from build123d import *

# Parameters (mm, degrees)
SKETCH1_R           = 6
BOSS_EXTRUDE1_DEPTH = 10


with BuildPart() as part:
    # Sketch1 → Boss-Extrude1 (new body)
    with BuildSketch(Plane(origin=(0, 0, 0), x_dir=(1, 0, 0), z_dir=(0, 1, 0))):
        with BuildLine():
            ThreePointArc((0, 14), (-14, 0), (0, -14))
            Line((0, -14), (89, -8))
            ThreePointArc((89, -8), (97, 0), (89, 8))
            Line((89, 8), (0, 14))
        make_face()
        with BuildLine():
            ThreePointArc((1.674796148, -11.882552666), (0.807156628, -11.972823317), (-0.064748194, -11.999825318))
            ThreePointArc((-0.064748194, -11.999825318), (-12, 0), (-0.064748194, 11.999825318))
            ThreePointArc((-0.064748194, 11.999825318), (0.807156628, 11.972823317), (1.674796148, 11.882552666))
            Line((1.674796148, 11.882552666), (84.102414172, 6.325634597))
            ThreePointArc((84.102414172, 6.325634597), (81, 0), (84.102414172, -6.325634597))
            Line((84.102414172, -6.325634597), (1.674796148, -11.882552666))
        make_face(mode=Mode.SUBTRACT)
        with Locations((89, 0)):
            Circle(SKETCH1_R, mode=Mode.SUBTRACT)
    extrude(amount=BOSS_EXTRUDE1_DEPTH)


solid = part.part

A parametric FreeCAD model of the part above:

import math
import FreeCAD as App
import Part
import Sketcher

doc = App.newDocument("Part")
body = doc.addObject("PartDesign::Body", "Body")

# Sketch on XZ plane
sketch1 = body.newObject("Sketcher::SketchObject", "Sketch")
sketch1.AttachmentSupport = (doc.getObject("XZ_Plane"), [""])
sketch1.MapMode = "FlatFace"
sketch1.addGeometry(Part.ArcOfCircle(Part.Circle(App.Vector(0, 0, 0), App.Vector(0, 0, 1), 14), math.radians(90), math.radians(270)), False)
sketch1.addGeometry(Part.LineSegment(App.Vector(0, 14, 0), App.Vector(89, 8, 0)), False)
sketch1.addGeometry(Part.ArcOfCircle(Part.Circle(App.Vector(89, 0, 0), App.Vector(0, 0, 1), 8), math.radians(-90), math.radians(90)), False)
sketch1.addGeometry(Part.LineSegment(App.Vector(89, -8, 0), App.Vector(0, -14, 0)), False)
sketch1.addGeometry(Part.LineSegment(App.Vector(84.1, 6.3, 0), App.Vector(1.7, 11.9, 0)), False)
sketch1.addGeometry(Part.ArcOfCircle(Part.Circle(App.Vector(0, 0, 0), App.Vector(0, 0, 1), 12), math.radians(81.98), math.radians(90.31)), False)
sketch1.addGeometry(Part.ArcOfCircle(Part.Circle(App.Vector(0, 0, 0), App.Vector(0, 0, 1), 12), math.radians(90), math.radians(270)), False)
sketch1.addGeometry(Part.ArcOfCircle(Part.Circle(App.Vector(0, 0, 0), App.Vector(0, 0, 1), 12), math.radians(-90.31), math.radians(-81.98)), False)
sketch1.addGeometry(Part.LineSegment(App.Vector(1.7, -11.9, 0), App.Vector(84.1, -6.3, 0)), False)
sketch1.addGeometry(Part.ArcOfCircle(Part.Circle(App.Vector(89, 0, 0), App.Vector(0, 0, 1), 8), math.radians(128), math.radians(232)), False)
sketch1.addGeometry(Part.Circle(App.Vector(89, 0, 0), App.Vector(0, 0, 1), 6), False)
sketch1.addConstraint(Sketcher.Constraint("Coincident", 0, 1, 1, 1))
sketch1.addConstraint(Sketcher.Constraint("Coincident", 1, 2, 2, 2))
sketch1.addConstraint(Sketcher.Constraint("Coincident", 2, 1, 3, 1))
sketch1.addConstraint(Sketcher.Constraint("Coincident", 3, 2, 0, 2))
sketch1.addConstraint(Sketcher.Constraint("Coincident", 4, 2, 5, 1))
sketch1.addConstraint(Sketcher.Constraint("Tangent", 5, 2, 6, 1))
sketch1.addConstraint(Sketcher.Constraint("Tangent", 6, 2, 7, 1))
sketch1.addConstraint(Sketcher.Constraint("Coincident", 7, 2, 8, 1))
sketch1.addConstraint(Sketcher.Constraint("Coincident", 8, 2, 9, 2))
sketch1.addConstraint(Sketcher.Constraint("Coincident", 9, 1, 4, 1))
sketch1.addConstraint(Sketcher.Constraint("Coincident", 0, 3, -1, 1))
sketch1.addConstraint(Sketcher.Constraint("Coincident", 5, 3, -1, 1))
sketch1.addConstraint(Sketcher.Constraint("Coincident", 7, 3, -1, 1))
sketch1.addConstraint(Sketcher.Constraint("Coincident", 9, 3, 2, 3))
sketch1.addConstraint(Sketcher.Constraint("Coincident", 10, 3, 2, 3))
sketch1.addConstraint(Sketcher.Constraint("Equal", 2, 9))
sketch1.addConstraint(Sketcher.Constraint("Symmetric", 1, 2, 2, 1, -1))
sketch1.addConstraint(Sketcher.Constraint("PointOnObject", 0, 1, -2))
sketch1.addConstraint(Sketcher.Constraint("PointOnObject", 3, 2, -2))
sketch1.addConstraint(Sketcher.Constraint("Parallel", 1, 4))
sketch1.addConstraint(Sketcher.Constraint("Parallel", 3, 8))
sketch1.addConstraint(Sketcher.Constraint("Vertical", 10, 3, 1, 2))
sketch1.addConstraint(Sketcher.Constraint("Vertical", 5, 2, 6, 2))
sketch1.addConstraint(Sketcher.Constraint("Vertical", 4, 2, 7, 2))
sketch1.addConstraint(Sketcher.Constraint("Diameter", 10, 12.0))
sketch1.addConstraint(Sketcher.Constraint("Radius", 0, 14.0))
sketch1.addConstraint(Sketcher.Constraint("Radius", 2, 8.0))
sketch1.addConstraint(Sketcher.Constraint("Radius", 5, 12.0))
sketch1.addConstraint(Sketcher.Constraint("DistanceX", -1, 1, 2, 3, 89.0))
sketch1.addConstraint(Sketcher.Constraint("DistanceX", 5, 2, -1, 1, 0.064748))
sketch1.addConstraint(Sketcher.Constraint("DistanceY", 8, 2, 9, 1, 12.651269))
pad1 = body.newObject("PartDesign::Pad", "Pad")
pad1.Profile = sketch1
pad1.Length = 10
pad1.Reversed = True

doc.recompute()
